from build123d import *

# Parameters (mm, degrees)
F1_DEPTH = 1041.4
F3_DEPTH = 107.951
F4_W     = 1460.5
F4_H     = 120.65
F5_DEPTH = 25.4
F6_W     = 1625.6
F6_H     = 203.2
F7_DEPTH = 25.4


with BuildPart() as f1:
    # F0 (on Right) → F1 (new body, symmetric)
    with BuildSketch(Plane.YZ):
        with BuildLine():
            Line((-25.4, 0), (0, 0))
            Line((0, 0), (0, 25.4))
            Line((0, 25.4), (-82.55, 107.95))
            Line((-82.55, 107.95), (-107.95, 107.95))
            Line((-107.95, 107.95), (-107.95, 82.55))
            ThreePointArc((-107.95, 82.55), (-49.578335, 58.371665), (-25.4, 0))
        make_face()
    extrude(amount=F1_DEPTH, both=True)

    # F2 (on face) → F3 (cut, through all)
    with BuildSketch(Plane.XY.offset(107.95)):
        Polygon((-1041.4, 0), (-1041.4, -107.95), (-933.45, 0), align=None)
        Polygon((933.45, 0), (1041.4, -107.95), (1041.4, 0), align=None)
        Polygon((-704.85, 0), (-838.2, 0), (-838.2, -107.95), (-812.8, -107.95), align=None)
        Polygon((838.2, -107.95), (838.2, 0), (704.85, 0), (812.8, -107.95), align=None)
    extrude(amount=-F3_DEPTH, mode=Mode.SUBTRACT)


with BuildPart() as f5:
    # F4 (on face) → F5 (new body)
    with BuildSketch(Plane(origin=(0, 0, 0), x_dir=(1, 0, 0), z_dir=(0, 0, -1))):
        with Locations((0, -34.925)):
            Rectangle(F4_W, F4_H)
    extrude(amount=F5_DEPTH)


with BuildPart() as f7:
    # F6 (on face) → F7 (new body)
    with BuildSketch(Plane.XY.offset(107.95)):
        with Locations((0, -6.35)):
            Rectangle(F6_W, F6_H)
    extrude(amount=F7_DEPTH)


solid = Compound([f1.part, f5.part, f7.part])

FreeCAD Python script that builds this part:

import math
import FreeCAD as App
import Part
import Sketcher
from FreeCAD import Vector
Q = App.Units.Quantity


def add_polygon(sketch, points):
    """Adds a closed chain of lines whose ends are joined by coincident constraints."""
    first, n = sketch.GeometryCount, len(points)
    for a, b in zip(points, points[1:] + points[:1]):
        sketch.addGeometry(Part.LineSegment(App.Vector(*a, 0), App.Vector(*b, 0)), False)
    for i in range(n):
        sketch.addConstraint(Sketcher.Constraint("Coincident", first + i, 2, first + (i + 1) % n, 1))

doc = App.newDocument("Part")
body = doc.addObject("PartDesign::Body", "Body")
body.AllowCompound = True

# Sketch on YZ plane
sketch1 = body.newObject("Sketcher::SketchObject", "Sketch")
sketch1.AttachmentSupport = (doc.getObject("YZ_Plane"), [""])
sketch1.MapMode = "FlatFace"
sketch1.addGeometry(Part.LineSegment(Vector(-25, 0, 0), Vector(0, 0, 0)), False)
sketch1.addGeometry(Part.LineSegment(Vector(0, 0, 0), Vector(0, 25, 0)), False)
sketch1.addGeometry(Part.LineSegment(Vector(0, 25, 0), Vector(-83, 108, 0)), False)
sketch1.addGeometry(Part.LineSegment(Vector(-83, 108, 0), Vector(-108, 108, 0)), False)
sketch1.addGeometry(Part.LineSegment(Vector(-108, 108, 0), Vector(-108, 83, 0)), False)
sketch1.addGeometry(Part.ArcOfCircle(Part.Circle(Vector(-108, 0, 0), Vector(0, 0, 1), 83), math.radians(0), math.radians(90)), False)
sketch1.addConstraint(Sketcher.Constraint("Coincident", 0, 2, 1, 1))
sketch1.addConstraint(Sketcher.Constraint("Coincident", 1, 2, 2, 1))
sketch1.addConstraint(Sketcher.Constraint("Coincident", 2, 2, 3, 1))
sketch1.addConstraint(Sketcher.Constraint("Coincident", 3, 2, 4, 1))
sketch1.addConstraint(Sketcher.Constraint("Coincident", 4, 2, 5, 2))
sketch1.addConstraint(Sketcher.Constraint("Coincident", 5, 1, 0, 1))
sketch1.addConstraint(Sketcher.Constraint("Horizontal", 0))
sketch1.addConstraint(Sketcher.Constraint("Vertical", 1))
sketch1.addConstraint(Sketcher.Constraint("Horizontal", 3))
sketch1.addConstraint(Sketcher.Constraint("Vertical", 4))
sketch1.addConstraint(Sketcher.Constraint("Coincident", 0, 2, -1, 1))
sketch1.addConstraint(Sketcher.Constraint("PointOnObject", 5, 3, -1))
sketch1.addConstraint(Sketcher.Constraint("Vertical", 5, 3, 3, 2))
sketch1.addConstraint(Sketcher.Constraint("Equal", 0, 3))
sketch1.addConstraint(Sketcher.Constraint("Equal", 3, 1))
sketch1.addConstraint(Sketcher.Constraint("Equal", 1, 4))
sketch1.addConstraint(Sketcher.Constraint("DistanceX", 0, 1, 0, 2, Q("1 in")))
sketch1.addConstraint(Sketcher.Constraint("Radius", 5, Q("3.25 in")))
pad1 = body.newObject("PartDesign::Pad", "Pad")
pad1.Profile = sketch1
pad1.Length = Q("82 in")
pad1.Midplane = True

# Sketch on XY plane
sketch2 = body.newObject("Sketcher::SketchObject", "Sketch001")
sketch2.AttachmentSupport = (doc.getObject("XY_Plane"), [""])
sketch2.MapMode = "FlatFace"
sketch2.AttachmentOffset = App.Placement(Vector(0, 0, 4.25 * 25.4), App.Rotation())
add_polygon(sketch2, [(-1041, 0), (-1041, -108), (-933, 0)])  # lines 0-2
add_polygon(sketch2, [(933, 0), (1041, -108), (1041, 0)])  # lines 3-5
add_polygon(sketch2, [(-705, 0), (-838, 0), (-838, -108), (-813, -108)])  # lines 6-9
add_polygon(sketch2, [(838, -108), (838, 0), (705, 0), (813, -108)])  # lines 10-13
sketch2.addConstraint(Sketcher.Constraint("Vertical", 0))
sketch2.addConstraint(Sketcher.Constraint("Horizontal", 2))
sketch2.addConstraint(Sketcher.Constraint("Vertical", 4))
sketch2.addConstraint(Sketcher.Constraint("Horizontal", 5))
sketch2.addConstraint(Sketcher.Constraint("Horizontal", 6))
sketch2.addConstraint(Sketcher.Constraint("Vertical", 7))
sketch2.addConstraint(Sketcher.Constraint("Horizontal", 8))
sketch2.addConstraint(Sketcher.Constraint("Vertical", 10))
sketch2.addConstraint(Sketcher.Constraint("Horizontal", 11))
sketch2.addConstraint(Sketcher.Constraint("Horizontal", 13))
sketch2.addConstraint(Sketcher.Constraint("Symmetric", 2, 2, 4, 2, -1, 1))
sketch2.addConstraint(Sketcher.Constraint("Symmetric", 6, 2, 10, 2, -1, 1))
sketch2.addConstraint(Sketcher.Constraint("Symmetric", 1, 2, 5, 2, -2))
sketch2.addConstraint(Sketcher.Constraint("Symmetric", 9, 2, 11, 2, -2))
sketch2.addConstraint(Sketcher.Constraint("Symmetric", 8, 2, 12, 2, -2))
sketch2.addConstraint(Sketcher.Constraint("Perpendicular", 1, 3))
sketch2.addConstraint(Sketcher.Constraint("Perpendicular", 3, 9))
sketch2.addConstraint(Sketcher.Constraint("Perpendicular", 9, 12))
sketch2.addConstraint(Sketcher.Constraint("Horizontal", 3, 2, 7, 2))
sketch2.addConstraint(Sketcher.Constraint("DistanceX", 8, 1, 8, 2, Q("1 in")))
sketch2.addConstraint(Sketcher.Constraint("DistanceX", 0, 2, -1, 1, Q("41 in")))
sketch2.addConstraint(Sketcher.Constraint("DistanceX", 6, 2, -1, 1, Q("33 in")))
sketch2.addConstraint(Sketcher.Constraint("DistanceX", 2, 2, 2, 1, Q("4.25 in")))
pocket1 = body.newObject("PartDesign::Pocket", "Pocket")
pocket1.Profile = sketch2
pocket1.Type = "ThroughAll"
body2 = doc.addObject("PartDesign::Body", "Body001")

# Sketch on XY plane
sketch3 = body2.newObject("Sketcher::SketchObject", "Sketch002")
sketch3.AttachmentSupport = (doc.getObject("XY_Plane001"), [""])
sketch3.MapMode = "FlatFace"
add_polygon(sketch3, [(-730, -25), (-730, 95), (730, 95), (730, -25)])  # lines 0-3
sketch3.addConstraint(Sketcher.Constraint("Vertical", 0))
sketch3.addConstraint(Sketcher.Constraint("Horizontal", 1))
sketch3.addConstraint(Sketcher.Constraint("Vertical", 2))
sketch3.addConstraint(Sketcher.Constraint("Horizontal", 3))
sketch3.addConstraint(Sketcher.Constraint("DistanceX", 1, 1, 1, 2, Q("57.5 in")))
sketch3.addConstraint(Sketcher.Constraint("DistanceY", 2, 2, -1, 1, Q("1 in")))
sketch3.addConstraint(Sketcher.Constraint("DistanceY", 0, 1, 0, 2, Q("4.75 in")))
sketch3.addConstraint(Sketcher.Constraint("DistanceX", 0, 2, -1, 1, Q("28.75 in")))
pad2 = body2.newObject("PartDesign::Pad", "Pad001")
pad2.Profile = sketch3
pad2.Length = Q("1 in")
pad2.Reversed = True
body3 = doc.addObject("PartDesign::Body", "Body002")

# Sketch on XY plane
sketch4 = body3.newObject("Sketcher::SketchObject", "Sketch003")
sketch4.AttachmentSupport = (doc.getObject("XY_Plane002"), [""])
sketch4.MapMode = "FlatFace"
sketch4.AttachmentOffset = App.Placement(Vector(0, 0, 4.25 * 25.4), App.Rotation())
add_polygon(sketch4, [(-813, 95), (-813, -108), (813, -108), (813, 95)])  # lines 0-3
sketch4.addConstraint(Sketcher.Constraint("Vertical", 0))
sketch4.addConstraint(Sketcher.Constraint("Horizontal", 1))
sketch4.addConstraint(Sketcher.Constraint("Vertical", 2))
sketch4.addConstraint(Sketcher.Constraint("Horizontal", 3))
sketch4.addConstraint(Sketcher.Constraint("DistanceX", 1, 1, 1, 2, Q("64 in")))
sketch4.addConstraint(Sketcher.Constraint("DistanceY", 0, 2, 0, 1, Q("8 in")))
sketch4.addConstraint(Sketcher.Constraint("DistanceX", 0, 2, -1, 1, Q("32 in")))
sketch4.addConstraint(Sketcher.Constraint("DistanceY", 0, 2, -1, 1, Q("4.25 in")))
pad3 = body3.newObject("PartDesign::Pad", "Pad002")
pad3.Profile = sketch4
pad3.Length = Q("1 in")

doc.recompute()
